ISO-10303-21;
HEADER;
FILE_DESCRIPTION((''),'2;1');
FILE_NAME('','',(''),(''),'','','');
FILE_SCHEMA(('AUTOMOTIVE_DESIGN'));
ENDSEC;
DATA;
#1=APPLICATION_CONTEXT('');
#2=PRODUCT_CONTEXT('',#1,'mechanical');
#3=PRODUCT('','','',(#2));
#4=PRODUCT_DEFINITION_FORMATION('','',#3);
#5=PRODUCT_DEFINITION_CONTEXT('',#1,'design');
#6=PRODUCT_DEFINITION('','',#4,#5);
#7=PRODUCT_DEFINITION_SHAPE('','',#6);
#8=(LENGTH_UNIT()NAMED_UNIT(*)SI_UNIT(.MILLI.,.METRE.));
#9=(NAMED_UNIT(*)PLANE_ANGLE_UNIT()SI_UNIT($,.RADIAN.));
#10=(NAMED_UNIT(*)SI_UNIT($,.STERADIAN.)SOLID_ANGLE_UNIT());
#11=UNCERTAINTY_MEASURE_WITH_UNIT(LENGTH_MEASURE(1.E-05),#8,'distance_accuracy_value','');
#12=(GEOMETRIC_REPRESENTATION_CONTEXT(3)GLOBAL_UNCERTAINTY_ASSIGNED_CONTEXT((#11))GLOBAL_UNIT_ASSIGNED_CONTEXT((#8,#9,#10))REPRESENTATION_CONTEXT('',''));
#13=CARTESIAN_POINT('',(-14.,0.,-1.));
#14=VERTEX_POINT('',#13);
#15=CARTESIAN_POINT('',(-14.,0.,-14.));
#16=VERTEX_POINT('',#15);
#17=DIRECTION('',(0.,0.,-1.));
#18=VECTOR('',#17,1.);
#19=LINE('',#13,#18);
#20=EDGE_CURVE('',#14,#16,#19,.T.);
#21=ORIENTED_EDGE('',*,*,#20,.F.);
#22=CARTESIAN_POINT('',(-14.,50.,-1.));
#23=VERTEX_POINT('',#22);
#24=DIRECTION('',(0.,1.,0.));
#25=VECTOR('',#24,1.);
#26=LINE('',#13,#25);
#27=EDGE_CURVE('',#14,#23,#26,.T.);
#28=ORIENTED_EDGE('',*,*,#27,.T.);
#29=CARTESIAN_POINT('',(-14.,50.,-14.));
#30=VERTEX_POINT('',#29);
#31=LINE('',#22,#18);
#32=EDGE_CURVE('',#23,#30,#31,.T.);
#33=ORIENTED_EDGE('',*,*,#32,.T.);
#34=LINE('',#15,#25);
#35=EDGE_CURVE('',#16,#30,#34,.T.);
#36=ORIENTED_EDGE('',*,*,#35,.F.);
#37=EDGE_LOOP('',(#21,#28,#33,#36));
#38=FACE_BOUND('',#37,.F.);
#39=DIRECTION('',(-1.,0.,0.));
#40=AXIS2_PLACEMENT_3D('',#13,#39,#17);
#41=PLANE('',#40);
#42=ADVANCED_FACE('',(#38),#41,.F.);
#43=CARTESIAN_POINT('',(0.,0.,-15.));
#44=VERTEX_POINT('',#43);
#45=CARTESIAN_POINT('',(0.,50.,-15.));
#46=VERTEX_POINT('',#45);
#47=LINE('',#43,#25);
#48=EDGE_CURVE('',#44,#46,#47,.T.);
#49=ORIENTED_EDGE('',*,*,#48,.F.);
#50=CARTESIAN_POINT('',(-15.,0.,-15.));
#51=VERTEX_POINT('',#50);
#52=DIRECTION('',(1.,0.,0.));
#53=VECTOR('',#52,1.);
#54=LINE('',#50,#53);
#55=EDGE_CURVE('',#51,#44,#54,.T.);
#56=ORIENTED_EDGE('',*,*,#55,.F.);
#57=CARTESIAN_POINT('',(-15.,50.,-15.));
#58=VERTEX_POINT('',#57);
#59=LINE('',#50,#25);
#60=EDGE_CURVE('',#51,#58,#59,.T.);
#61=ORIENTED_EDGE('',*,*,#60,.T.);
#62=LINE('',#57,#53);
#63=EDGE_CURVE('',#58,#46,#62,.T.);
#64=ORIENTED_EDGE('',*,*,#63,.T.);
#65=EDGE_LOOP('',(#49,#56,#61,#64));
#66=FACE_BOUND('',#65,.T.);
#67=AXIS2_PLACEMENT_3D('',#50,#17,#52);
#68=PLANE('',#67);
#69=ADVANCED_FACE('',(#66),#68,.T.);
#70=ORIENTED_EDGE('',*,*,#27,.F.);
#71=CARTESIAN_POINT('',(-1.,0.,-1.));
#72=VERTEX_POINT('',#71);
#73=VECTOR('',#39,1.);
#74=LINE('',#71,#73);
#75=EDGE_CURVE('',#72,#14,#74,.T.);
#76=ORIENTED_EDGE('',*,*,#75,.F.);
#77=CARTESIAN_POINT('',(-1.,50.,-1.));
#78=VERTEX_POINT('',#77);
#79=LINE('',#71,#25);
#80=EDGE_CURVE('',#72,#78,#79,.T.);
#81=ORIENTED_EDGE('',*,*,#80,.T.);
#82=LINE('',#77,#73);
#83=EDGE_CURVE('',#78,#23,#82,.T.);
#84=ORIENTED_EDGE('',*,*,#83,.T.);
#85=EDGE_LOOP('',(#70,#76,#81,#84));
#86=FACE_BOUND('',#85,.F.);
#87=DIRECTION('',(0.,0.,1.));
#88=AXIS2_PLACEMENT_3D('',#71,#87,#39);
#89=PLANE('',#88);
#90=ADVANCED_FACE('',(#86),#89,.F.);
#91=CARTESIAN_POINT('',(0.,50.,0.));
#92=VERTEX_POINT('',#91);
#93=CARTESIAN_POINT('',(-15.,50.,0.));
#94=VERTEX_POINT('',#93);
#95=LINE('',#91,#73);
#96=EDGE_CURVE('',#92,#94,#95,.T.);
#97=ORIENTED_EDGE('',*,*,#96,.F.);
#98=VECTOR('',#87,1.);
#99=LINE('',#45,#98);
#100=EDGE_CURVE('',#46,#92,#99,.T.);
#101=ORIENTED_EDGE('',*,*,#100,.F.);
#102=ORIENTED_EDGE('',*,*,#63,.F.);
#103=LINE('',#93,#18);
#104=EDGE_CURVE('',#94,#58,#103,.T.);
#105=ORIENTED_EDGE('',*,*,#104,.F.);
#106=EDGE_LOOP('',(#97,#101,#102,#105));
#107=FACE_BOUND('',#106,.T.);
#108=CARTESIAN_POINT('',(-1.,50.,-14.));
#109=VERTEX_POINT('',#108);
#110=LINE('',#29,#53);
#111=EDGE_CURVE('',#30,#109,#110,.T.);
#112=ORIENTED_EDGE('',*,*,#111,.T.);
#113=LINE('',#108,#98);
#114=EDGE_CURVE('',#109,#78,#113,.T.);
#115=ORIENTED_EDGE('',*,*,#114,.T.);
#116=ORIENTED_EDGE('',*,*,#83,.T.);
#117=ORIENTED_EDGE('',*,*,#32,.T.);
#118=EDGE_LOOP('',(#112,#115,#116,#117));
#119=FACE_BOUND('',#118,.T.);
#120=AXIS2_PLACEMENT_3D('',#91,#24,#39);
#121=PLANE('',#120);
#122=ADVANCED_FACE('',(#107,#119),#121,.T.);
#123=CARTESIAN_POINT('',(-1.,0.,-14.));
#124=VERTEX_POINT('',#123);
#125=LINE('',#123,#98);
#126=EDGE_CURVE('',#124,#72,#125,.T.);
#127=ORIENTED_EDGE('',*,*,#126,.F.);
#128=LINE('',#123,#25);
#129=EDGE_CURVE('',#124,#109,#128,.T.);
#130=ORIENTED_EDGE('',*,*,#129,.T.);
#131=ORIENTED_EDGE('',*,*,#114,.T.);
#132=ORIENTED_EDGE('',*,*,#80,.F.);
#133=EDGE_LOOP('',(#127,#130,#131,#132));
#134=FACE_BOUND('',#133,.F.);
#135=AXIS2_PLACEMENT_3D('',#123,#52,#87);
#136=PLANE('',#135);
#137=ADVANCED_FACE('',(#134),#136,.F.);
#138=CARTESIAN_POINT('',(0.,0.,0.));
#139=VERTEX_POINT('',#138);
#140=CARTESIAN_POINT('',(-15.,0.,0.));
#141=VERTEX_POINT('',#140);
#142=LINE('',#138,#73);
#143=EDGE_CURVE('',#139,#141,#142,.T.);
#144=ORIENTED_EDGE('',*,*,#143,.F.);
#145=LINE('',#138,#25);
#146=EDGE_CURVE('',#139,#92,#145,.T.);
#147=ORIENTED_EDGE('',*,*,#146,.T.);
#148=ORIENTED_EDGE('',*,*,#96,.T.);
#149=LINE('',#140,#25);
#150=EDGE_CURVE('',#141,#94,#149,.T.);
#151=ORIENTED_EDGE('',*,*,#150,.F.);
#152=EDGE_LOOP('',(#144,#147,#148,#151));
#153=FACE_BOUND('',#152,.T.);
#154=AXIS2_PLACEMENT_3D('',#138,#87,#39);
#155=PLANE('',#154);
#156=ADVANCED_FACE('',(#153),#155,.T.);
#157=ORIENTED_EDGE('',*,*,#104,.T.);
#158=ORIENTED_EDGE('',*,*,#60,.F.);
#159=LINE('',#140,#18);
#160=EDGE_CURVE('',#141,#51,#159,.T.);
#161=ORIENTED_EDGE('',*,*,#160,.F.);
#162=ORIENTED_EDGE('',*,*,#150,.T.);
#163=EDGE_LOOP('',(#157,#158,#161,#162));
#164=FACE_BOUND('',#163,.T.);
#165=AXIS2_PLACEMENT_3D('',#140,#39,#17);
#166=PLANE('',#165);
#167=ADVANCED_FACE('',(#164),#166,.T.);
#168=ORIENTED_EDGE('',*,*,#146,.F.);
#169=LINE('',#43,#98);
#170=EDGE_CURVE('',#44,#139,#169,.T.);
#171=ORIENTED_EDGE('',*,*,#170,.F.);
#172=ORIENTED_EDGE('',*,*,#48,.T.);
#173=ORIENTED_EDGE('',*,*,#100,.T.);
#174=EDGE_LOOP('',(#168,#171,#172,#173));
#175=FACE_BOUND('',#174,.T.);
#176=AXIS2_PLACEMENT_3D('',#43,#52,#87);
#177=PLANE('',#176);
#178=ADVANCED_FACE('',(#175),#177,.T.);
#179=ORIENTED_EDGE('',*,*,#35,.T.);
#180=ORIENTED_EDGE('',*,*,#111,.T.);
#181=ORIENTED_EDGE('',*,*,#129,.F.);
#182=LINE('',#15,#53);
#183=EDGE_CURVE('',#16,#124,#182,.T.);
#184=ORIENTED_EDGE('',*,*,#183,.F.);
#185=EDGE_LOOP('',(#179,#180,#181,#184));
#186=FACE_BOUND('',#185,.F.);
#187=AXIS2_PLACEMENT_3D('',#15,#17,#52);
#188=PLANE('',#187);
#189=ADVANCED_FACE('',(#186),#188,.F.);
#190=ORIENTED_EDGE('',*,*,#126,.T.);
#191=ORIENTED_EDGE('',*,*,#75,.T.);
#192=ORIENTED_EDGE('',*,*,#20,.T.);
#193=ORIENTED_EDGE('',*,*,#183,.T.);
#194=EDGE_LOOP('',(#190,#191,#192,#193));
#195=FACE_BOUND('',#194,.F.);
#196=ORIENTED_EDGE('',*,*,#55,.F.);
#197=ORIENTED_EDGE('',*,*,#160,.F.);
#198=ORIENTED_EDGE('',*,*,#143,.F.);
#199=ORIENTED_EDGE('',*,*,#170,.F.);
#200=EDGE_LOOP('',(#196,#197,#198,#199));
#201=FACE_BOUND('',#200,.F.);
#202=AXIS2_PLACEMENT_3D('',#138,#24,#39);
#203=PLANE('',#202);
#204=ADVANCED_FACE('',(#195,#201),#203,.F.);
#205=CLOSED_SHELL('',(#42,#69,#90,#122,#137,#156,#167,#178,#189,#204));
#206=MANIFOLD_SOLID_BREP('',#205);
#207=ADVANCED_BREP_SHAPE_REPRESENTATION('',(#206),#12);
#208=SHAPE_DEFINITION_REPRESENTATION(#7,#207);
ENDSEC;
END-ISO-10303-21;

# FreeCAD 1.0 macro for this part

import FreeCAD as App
import Part
import Sketcher

V = App.Vector


def add_polygon(sketch, points):
    """Adds a closed chain of lines whose ends are joined by coincident constraints."""
    first, n = sketch.GeometryCount, len(points)
    for a, b in zip(points, points[1:] + points[:1]):
        sketch.addGeometry(Part.LineSegment(App.Vector(*a, 0), App.Vector(*b, 0)), False)
    for i in range(n):
        sketch.addConstraint(Sketcher.Constraint("Coincident", first + i, 2, first + (i + 1) % n, 1))

doc = App.newDocument("Part")
params = doc.addObject("Spreadsheet::Sheet", "Params")
for row, (alias, value) in enumerate([
    ("sketch1_width", "15 mm"),
    ("sketch1_width2", "13 mm"),
    ("pad1_length", "50 mm"),
], start=1):
    params.set(f"A{row}", alias)
    params.set(f"B{row}", "=" + value)
    params.setAlias(f"B{row}", alias)

body = doc.addObject("PartDesign::Body", "Body")

# Sketch on XZ plane
sketch1 = body.newObject("Sketcher::SketchObject", "Sketch")
sketch1.AttachmentSupport = (doc.getObject("XZ_Plane"), [""])
sketch1.MapMode = "FlatFace"
add_polygon(sketch1, [(-15, 0), (0, 0), (0, -15), (-15, -15)])  # lines 0-3
add_polygon(sketch1, [(-1, -14), (-1, -1), (-14, -1), (-14, -14)])  # lines 4-7
sketch1.addConstraint([
    Sketcher.Constraint("Horizontal", 0),
    Sketcher.Constraint("Vertical", 1),
    Sketcher.Constraint("Horizontal", 2),
    Sketcher.Constraint("Vertical", 3),
    Sketcher.Constraint("Vertical", 4),
    Sketcher.Constraint("Horizontal", 5),
    Sketcher.Constraint("Vertical", 6),
    Sketcher.Constraint("Horizontal", 7),
    Sketcher.Constraint("Coincident", 0, 2, -1, 1),
    Sketcher.Constraint("Equal", 2, 1),
    Sketcher.Constraint("Equal", 7, 4),
    Sketcher.Constraint("DistanceX", 0, 1, 0, 2, 15.0),
    Sketcher.Constraint("DistanceX", 5, 2, 5, 1, 13.0),
    Sketcher.Constraint("DistanceX", 4, 2, -1, 1, 1.0),
    Sketcher.Constraint("DistanceY", 4, 2, -1, 1, 1.0),
])
sketch1.setExpression("Constraints[19]", "Params.sketch1_width")
sketch1.setExpression("Constraints[20]", "Params.sketch1_width2")
pad1 = body.newObject("PartDesign::Pad", "Pad")
pad1.Profile = sketch1
pad1.setExpression("Length", "Params.pad1_length")
pad1.Reversed = True

doc.recompute()
